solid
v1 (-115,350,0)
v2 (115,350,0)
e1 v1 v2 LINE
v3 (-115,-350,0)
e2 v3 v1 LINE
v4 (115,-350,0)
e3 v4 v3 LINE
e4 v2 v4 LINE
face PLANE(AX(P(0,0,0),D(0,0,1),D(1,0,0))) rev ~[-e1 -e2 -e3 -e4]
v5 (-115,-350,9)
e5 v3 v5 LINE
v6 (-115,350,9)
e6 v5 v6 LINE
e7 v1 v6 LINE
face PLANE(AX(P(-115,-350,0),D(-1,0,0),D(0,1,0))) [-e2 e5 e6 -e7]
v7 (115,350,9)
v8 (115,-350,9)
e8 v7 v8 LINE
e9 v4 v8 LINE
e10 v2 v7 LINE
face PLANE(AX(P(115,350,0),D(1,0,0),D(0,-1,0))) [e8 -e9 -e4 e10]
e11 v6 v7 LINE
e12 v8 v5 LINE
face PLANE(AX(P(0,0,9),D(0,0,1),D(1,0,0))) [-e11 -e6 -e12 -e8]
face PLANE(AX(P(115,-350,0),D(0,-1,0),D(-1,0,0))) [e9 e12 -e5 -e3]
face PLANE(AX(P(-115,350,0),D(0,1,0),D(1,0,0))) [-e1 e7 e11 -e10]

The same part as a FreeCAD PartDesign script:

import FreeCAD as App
import Part
import Sketcher

V = App.Vector
Q = App.Units.Quantity

doc = App.newDocument("Part")
params = doc.addObject("Spreadsheet::Sheet", "Params")
for row, (alias, value) in enumerate([
    ("sketch1_width", "230 mm"),
    ("sketch1_height", "700 mm"),
    ("pad1_length", "9 mm"),
], start=1):
    params.set(f"A{row}", alias)
    params.set(f"B{row}", "=" + value)
    params.setAlias(f"B{row}", alias)

body = doc.addObject("PartDesign::Body", "Body")

# Sketch on XY plane
sketch1 = body.newObject("Sketcher::SketchObject", "Sketch")
sketch1.AttachmentSupport = (doc.getObject("XY_Plane"), [""])
sketch1.MapMode = "FlatFace"
sketch1.addGeometry([
    Part.LineSegment(V(-115, -350, 0), V(115, -350, 0)),
    Part.LineSegment(V(115, -350, 0), V(115, 350, 0)),
    Part.LineSegment(V(115, 350, 0), V(-115, 350, 0)),
    Part.LineSegment(V(-115, 350, 0), V(-115, -350, 0)),
], False)
sketch1.addConstraint([
    Sketcher.Constraint("Coincident", 0, 2, 1, 1),
    Sketcher.Constraint("Coincident", 1, 2, 2, 1),
    Sketcher.Constraint("Coincident", 2, 2, 3, 1),
    Sketcher.Constraint("Coincident", 3, 2, 0, 1),
    Sketcher.Constraint("Horizontal", 0),
    Sketcher.Constraint("Vertical", 1),
    Sketcher.Constraint("Horizontal", 2),
    Sketcher.Constraint("Vertical", 3),
    Sketcher.Constraint("Symmetric", 0, 2, 2, 2, -1, 1),
    Sketcher.Constraint("DistanceX", 0, 1, 0, 2, Q("230 mm")),
    Sketcher.Constraint("DistanceY", 1, 1, 1, 2, Q("700 mm")),
])
sketch1.setExpression("Constraints[9]", "Params.sketch1_width")
sketch1.setExpression("Constraints[10]", "Params.sketch1_height")
pad1 = body.newObject("PartDesign::Pad", "Pad")
pad1.Profile = sketch1
pad1.setExpression("Length", "Params.pad1_length")

doc.recompute()
